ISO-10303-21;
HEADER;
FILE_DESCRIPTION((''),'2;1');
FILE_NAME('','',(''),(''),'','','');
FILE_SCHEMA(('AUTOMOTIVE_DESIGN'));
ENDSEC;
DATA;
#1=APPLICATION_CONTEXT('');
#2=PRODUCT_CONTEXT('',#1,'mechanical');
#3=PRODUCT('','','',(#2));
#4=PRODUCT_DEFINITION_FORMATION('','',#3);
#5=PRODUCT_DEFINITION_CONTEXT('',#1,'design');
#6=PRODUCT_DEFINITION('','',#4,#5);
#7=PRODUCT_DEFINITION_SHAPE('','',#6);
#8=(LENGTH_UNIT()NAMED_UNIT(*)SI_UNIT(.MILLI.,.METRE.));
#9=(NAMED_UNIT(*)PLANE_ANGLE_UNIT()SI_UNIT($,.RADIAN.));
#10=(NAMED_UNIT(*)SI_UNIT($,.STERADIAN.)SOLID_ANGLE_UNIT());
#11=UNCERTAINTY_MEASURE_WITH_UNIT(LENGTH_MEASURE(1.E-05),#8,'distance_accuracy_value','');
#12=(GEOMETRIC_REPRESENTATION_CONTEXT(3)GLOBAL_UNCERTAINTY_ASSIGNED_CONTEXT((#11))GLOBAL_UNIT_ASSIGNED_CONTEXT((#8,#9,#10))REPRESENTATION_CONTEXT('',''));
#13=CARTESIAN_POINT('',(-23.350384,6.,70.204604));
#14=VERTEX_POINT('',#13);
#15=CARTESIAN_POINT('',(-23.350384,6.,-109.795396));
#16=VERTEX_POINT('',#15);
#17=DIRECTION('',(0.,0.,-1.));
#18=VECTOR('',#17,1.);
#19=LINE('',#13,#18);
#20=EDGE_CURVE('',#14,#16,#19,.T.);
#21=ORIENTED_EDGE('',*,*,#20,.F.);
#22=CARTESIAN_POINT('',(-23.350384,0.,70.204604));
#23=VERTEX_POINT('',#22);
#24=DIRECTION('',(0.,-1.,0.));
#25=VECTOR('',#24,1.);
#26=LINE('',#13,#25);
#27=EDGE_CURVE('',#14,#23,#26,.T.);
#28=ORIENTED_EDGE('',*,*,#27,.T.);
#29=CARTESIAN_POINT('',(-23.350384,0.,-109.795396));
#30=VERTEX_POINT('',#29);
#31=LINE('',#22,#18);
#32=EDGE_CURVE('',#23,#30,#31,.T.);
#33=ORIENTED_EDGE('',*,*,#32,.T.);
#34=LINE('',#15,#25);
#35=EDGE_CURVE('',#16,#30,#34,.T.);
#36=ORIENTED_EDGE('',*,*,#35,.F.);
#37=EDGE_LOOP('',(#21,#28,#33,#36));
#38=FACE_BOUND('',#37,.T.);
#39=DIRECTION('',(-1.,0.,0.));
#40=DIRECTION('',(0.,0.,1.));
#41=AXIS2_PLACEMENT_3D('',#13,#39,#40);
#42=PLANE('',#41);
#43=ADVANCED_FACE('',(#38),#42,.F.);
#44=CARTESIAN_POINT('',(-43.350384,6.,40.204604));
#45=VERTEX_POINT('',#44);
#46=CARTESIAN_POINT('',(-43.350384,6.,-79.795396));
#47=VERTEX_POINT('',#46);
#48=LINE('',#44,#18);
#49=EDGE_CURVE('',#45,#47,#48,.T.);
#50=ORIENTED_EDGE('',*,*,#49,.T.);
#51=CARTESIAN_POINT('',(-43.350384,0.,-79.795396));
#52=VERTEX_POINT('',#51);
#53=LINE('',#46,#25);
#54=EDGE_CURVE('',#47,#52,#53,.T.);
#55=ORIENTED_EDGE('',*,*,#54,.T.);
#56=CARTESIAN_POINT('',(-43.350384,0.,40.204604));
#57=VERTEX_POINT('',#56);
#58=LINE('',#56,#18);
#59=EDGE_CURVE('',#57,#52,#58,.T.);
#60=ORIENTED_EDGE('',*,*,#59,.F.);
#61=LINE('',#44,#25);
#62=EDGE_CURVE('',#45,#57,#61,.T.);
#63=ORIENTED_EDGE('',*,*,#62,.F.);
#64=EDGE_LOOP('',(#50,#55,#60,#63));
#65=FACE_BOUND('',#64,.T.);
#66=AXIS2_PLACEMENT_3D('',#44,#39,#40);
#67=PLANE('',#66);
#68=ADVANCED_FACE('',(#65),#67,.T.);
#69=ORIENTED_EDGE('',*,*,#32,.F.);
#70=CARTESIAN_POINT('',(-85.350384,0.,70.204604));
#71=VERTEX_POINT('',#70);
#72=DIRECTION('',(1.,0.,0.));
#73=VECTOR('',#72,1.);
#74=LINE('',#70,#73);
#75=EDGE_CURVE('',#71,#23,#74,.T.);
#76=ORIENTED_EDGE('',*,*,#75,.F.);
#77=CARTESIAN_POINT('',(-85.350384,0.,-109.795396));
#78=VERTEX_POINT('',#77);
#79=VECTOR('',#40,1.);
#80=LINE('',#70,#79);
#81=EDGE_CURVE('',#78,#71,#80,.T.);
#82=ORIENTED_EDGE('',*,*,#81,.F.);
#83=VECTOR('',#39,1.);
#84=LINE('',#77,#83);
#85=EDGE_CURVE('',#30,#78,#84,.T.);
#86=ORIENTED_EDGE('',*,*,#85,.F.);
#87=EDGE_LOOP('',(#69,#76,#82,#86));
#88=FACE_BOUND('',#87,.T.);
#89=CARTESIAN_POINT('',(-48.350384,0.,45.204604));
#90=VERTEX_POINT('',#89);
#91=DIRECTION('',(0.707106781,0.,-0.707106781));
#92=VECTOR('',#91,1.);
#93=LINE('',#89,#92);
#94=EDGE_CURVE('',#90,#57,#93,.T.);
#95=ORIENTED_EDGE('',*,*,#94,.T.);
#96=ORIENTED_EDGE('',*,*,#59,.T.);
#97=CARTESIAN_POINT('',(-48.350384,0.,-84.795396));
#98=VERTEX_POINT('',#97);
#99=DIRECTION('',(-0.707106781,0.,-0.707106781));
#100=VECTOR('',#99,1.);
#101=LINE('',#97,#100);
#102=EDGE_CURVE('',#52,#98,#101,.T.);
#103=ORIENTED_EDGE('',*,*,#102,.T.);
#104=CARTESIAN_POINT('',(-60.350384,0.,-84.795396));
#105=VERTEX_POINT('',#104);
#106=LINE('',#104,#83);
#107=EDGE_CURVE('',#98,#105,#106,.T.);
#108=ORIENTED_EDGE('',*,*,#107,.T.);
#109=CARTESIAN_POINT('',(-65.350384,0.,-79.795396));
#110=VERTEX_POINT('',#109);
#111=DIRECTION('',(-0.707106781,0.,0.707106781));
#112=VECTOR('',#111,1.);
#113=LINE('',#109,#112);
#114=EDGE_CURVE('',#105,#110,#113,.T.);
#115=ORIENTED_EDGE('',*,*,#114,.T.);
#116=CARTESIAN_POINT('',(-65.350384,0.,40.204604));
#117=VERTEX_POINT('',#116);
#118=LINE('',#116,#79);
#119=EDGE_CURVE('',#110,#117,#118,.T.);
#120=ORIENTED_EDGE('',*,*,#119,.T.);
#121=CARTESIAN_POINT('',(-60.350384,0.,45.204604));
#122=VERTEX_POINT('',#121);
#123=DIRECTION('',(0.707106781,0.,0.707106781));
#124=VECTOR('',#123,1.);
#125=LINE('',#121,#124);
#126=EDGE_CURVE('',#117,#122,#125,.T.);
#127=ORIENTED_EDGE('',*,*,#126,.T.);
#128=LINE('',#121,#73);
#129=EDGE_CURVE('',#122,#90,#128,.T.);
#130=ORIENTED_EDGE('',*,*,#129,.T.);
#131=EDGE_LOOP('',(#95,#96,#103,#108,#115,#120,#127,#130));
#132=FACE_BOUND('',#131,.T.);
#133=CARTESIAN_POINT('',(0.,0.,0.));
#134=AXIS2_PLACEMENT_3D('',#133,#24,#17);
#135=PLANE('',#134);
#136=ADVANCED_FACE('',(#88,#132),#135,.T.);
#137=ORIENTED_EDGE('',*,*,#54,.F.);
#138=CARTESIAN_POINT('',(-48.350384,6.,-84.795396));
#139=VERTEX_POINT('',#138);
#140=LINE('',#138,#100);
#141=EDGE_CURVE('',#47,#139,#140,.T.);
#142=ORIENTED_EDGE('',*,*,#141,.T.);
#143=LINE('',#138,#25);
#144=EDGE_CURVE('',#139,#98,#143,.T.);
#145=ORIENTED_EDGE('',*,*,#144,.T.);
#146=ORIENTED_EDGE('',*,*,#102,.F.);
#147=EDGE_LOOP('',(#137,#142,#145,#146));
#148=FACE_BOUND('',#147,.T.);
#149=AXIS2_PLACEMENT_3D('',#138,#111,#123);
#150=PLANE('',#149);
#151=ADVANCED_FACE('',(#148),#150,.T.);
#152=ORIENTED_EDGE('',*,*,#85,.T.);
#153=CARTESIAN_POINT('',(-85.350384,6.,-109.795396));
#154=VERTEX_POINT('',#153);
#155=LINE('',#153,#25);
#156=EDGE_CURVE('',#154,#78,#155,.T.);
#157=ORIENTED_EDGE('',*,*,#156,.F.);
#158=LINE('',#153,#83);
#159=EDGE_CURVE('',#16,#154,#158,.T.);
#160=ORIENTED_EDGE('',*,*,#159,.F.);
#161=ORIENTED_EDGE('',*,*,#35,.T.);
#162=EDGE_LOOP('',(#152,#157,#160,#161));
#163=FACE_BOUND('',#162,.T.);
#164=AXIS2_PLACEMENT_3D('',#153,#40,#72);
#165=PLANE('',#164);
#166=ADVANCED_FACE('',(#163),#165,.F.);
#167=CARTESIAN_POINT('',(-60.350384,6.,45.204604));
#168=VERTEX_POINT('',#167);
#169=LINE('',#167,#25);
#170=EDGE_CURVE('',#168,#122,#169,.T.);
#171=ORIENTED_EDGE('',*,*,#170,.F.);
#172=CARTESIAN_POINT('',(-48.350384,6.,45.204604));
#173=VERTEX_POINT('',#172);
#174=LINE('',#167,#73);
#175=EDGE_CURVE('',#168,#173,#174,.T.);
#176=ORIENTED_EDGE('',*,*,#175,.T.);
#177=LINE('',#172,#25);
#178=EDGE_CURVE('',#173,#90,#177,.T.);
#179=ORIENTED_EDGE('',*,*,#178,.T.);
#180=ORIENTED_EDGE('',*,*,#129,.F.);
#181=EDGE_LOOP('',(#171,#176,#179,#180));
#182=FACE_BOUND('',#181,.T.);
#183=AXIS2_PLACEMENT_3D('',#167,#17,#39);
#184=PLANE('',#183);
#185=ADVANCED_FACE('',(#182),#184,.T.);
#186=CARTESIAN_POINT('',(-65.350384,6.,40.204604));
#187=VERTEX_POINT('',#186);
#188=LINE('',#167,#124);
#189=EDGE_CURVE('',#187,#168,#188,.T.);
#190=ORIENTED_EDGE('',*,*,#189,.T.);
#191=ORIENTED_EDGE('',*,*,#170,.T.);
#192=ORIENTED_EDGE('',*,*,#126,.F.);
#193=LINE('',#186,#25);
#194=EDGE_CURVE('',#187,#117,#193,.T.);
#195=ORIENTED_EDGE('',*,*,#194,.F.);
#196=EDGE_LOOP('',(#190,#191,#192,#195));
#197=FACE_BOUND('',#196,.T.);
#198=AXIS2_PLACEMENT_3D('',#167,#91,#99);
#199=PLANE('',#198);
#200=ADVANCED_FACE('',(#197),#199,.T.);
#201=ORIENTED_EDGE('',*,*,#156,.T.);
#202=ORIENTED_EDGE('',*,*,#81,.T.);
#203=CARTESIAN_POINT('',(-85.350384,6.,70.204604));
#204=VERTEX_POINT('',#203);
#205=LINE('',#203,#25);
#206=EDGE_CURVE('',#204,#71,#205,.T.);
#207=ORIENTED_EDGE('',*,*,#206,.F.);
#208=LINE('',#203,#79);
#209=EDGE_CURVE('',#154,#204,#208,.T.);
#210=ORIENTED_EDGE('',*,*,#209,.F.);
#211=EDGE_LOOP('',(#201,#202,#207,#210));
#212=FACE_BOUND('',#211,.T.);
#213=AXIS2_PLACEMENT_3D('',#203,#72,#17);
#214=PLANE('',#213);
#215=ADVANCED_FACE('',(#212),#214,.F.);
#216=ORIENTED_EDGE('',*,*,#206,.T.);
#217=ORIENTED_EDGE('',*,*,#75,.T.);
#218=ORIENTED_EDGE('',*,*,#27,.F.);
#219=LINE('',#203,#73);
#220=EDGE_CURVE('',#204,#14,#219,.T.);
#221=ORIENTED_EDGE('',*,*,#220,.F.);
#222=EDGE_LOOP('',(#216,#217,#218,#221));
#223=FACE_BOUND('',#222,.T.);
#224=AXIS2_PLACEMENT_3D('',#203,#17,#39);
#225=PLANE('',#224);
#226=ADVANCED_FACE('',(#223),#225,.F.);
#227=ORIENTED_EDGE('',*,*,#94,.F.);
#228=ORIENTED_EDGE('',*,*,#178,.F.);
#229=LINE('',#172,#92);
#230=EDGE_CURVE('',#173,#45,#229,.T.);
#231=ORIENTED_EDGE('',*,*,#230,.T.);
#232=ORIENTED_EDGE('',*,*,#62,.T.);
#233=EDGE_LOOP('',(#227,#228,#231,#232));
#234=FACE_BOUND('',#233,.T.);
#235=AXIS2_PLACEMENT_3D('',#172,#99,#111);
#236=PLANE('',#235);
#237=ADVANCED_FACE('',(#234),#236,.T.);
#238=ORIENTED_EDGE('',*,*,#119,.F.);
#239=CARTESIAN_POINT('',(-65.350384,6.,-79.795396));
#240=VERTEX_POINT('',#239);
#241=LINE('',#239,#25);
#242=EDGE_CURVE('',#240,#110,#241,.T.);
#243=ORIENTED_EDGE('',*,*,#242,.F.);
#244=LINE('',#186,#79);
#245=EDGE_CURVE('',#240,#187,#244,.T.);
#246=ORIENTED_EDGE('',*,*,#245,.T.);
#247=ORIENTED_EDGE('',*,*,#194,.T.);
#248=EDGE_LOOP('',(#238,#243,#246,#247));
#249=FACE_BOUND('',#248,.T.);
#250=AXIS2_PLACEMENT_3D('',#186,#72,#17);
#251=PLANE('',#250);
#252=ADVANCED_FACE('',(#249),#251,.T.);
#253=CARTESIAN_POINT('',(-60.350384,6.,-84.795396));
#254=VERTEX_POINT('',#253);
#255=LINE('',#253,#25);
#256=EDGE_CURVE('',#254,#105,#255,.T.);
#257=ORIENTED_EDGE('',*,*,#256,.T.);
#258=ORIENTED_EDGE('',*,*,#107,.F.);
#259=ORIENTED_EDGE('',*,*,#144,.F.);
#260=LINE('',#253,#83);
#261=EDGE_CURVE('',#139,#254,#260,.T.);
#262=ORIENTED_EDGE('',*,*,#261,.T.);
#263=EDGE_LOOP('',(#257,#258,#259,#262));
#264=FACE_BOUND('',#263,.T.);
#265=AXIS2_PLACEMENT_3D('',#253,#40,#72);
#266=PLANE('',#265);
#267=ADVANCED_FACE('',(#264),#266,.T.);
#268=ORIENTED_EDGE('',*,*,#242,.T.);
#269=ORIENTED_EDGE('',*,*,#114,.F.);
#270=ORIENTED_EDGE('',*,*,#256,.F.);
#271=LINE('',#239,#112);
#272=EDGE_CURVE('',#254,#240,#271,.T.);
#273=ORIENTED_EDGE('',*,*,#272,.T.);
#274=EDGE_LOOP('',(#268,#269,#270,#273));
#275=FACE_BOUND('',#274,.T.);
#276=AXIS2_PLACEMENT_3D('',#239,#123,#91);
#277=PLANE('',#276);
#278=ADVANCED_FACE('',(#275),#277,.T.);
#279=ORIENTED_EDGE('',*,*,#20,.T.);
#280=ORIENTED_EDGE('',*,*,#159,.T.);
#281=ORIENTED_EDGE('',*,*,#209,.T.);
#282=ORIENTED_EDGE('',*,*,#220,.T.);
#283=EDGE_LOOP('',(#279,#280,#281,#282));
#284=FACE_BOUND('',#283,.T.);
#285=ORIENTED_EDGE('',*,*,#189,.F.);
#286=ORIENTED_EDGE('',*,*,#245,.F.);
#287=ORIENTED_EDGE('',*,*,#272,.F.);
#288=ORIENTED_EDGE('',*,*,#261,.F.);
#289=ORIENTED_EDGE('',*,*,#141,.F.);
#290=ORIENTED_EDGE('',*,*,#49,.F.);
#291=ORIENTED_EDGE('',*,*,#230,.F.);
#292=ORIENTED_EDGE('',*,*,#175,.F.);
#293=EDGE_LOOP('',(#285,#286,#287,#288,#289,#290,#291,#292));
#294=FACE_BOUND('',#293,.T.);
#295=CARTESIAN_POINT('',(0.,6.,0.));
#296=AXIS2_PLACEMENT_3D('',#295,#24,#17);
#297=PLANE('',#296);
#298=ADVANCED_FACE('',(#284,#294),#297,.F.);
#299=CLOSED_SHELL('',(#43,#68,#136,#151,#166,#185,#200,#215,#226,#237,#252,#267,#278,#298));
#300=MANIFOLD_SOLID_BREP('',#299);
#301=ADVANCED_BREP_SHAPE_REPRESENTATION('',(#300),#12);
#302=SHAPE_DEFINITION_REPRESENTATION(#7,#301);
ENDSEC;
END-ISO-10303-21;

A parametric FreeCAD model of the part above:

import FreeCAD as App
import Part
import Sketcher
from FreeCAD import Vector


def add_polygon(sketch, points):
    """Adds a closed chain of lines whose ends are joined by coincident constraints."""
    first, n = sketch.GeometryCount, len(points)
    for a, b in zip(points, points[1:] + points[:1]):
        sketch.addGeometry(Part.LineSegment(App.Vector(*a, 0), App.Vector(*b, 0)), False)
    for i in range(n):
        sketch.addConstraint(Sketcher.Constraint("Coincident", first + i, 2, first + (i + 1) % n, 1))

doc = App.newDocument("Part")
body = doc.addObject("PartDesign::Body", "Body")

# Sketch on XZ plane
sketch1 = body.newObject("Sketcher::SketchObject", "Sketch")
sketch1.AttachmentSupport = (doc.getObject("XZ_Plane"), [""])
sketch1.MapMode = "FlatFace"
add_polygon(sketch1, [(-85, -110), (-85, 70), (-23, 70), (-23, -110)])  # lines 0-3
add_polygon(sketch1, [(-60, -85), (-48, -85), (-43, -80), (-43, 40), (-48, 45), (-60, 45), (-65, 40), (-65, -80)])  # lines 4-11
sketch1.addConstraint(Sketcher.Constraint("Vertical", 0))
sketch1.addConstraint(Sketcher.Constraint("Horizontal", 1))
sketch1.addConstraint(Sketcher.Constraint("Vertical", 2))
sketch1.addConstraint(Sketcher.Constraint("Horizontal", 3))
sketch1.addConstraint(Sketcher.Constraint("Horizontal", 4))
sketch1.addConstraint(Sketcher.Constraint("Vertical", 6))
sketch1.addConstraint(Sketcher.Constraint("Horizontal", 8))
sketch1.addConstraint(Sketcher.Constraint("Vertical", 10))
sketch1.addConstraint(Sketcher.Constraint("Perpendicular", 5, 7))
sketch1.addConstraint(Sketcher.Constraint("Perpendicular", 7, 9))
sketch1.addConstraint(Sketcher.Constraint("Perpendicular", 9, 11))
sketch1.addConstraint(Sketcher.Constraint("Horizontal", 6, 2, 9, 2))
sketch1.addConstraint(Sketcher.Constraint("Horizontal", 5, 2, 10, 2))
sketch1.addConstraint(Sketcher.Constraint("Vertical", 4, 2, 7, 2))
sketch1.addConstraint(Sketcher.Constraint("Vertical", 8, 2, 11, 2))
sketch1.addConstraint(Sketcher.Constraint("DistanceX", 1, 1, 1, 2, 62.0))
sketch1.addConstraint(Sketcher.Constraint("DistanceX", 4, 1, 4, 2, 12.0))
sketch1.addConstraint(Sketcher.Constraint("DistanceY", 0, 1, 0, 2, 180.0))
sketch1.addConstraint(Sketcher.Constraint("DistanceY", 6, 1, 6, 2, 120.0))
sketch1.addConstraint(Sketcher.Constraint("DistanceX", 4, 2, 2, 2, 25.0))
sketch1.addConstraint(Sketcher.Constraint("DistanceY", 2, 2, 4, 2, 25.0))
sketch1.addConstraint(Sketcher.Constraint("DistanceX", 4, 2, 5, 2, 5.0))
sketch1.addConstraint(Sketcher.Constraint("DistanceX", 0, 2, -1, 1, 85.350384))
sketch1.addConstraint(Sketcher.Constraint("DistanceY", -1, 1, 0, 2, 70.204604))
pad1 = body.newObject("PartDesign::Pad", "Pad")
pad1.Profile = sketch1
pad1.Length = 6
pad1.Reversed = True

doc.recompute()
